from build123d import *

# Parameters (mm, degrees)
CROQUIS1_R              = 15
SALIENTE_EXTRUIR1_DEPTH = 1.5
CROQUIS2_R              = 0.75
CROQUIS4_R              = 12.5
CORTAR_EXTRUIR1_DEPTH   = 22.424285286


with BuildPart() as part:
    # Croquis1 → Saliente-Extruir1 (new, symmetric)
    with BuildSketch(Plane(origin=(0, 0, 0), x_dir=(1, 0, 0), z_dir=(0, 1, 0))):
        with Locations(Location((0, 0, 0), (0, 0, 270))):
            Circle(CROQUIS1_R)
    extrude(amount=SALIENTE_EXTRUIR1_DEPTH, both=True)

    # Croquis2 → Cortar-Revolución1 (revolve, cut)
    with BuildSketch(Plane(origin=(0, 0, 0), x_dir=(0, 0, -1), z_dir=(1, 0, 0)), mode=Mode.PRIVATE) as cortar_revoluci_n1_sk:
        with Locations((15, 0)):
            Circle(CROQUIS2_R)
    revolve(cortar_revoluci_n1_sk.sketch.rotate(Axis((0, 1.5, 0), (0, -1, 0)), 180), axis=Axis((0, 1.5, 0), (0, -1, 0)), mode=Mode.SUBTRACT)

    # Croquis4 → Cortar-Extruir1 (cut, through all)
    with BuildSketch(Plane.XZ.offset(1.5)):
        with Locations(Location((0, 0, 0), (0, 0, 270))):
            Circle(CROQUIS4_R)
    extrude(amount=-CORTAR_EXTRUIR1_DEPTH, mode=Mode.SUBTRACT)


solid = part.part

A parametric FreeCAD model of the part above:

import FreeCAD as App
import Part
import Sketcher
from FreeCAD import Vector

doc = App.newDocument("Part")
body = doc.addObject("PartDesign::Body", "Body")

sketch1 = body.newObject("Sketcher::SketchObject", "Sketch")
sketch1.AttachmentSupport = (doc.getObject("XZ_Plane"), [""])
sketch1.MapMode = "FlatFace"
sketch1.addGeometry(Part.Circle(Vector(0, 0, 0), Vector(0, 0, 1), 15), False)
sketch1.addConstraint([
    Sketcher.Constraint("Coincident", 0, 3, -1, 1),
    Sketcher.Constraint("Diameter", 0, 30.0),
])
pad1 = body.newObject("PartDesign::Pad", "Pad")
pad1.Profile = sketch1
pad1.Length = 3
pad1.Midplane = True

sketch2 = body.newObject("Sketcher::SketchObject", "Sketch001")
sketch2.AttachmentSupport = (doc.getObject("YZ_Plane"), [""])
sketch2.MapMode = "FlatFace"
sketch2.addGeometry(Part.Circle(Vector(0, -15, 0), Vector(0, 0, 1), 0.8), False)
sketch2.addConstraint([
    Sketcher.Constraint("PointOnObject", 0, 3, -2),
    Sketcher.Constraint("Diameter", 0, 1.5),
    Sketcher.Constraint("DistanceY", 0, 3, -1, 1, 15.0),
])
groove = body.newObject("PartDesign::Groove", "Groove")
groove.Profile = sketch2
groove.ReferenceAxis = (sketch2, ["H_Axis"])
groove.Angle = 360

sketch3 = body.newObject("Sketcher::SketchObject", "Sketch002")
sketch3.AttachmentSupport = (doc.getObject("XZ_Plane"), [""])
sketch3.MapMode = "FlatFace"
sketch3.AttachmentOffset = App.Placement(Vector(0, 0, 1.5), App.Rotation())
sketch3.addGeometry(Part.Circle(Vector(0, 0, 0), Vector(0, 0, 1), 12), False)
sketch3.addConstraint([
    Sketcher.Constraint("Coincident", 0, 3, -1, 1),
    Sketcher.Constraint("Diameter", 0, 25.0),
])
pocket1 = body.newObject("PartDesign::Pocket", "Pocket")
pocket1.Profile = sketch3
pocket1.Type = "ThroughAll"

doc.recompute()
